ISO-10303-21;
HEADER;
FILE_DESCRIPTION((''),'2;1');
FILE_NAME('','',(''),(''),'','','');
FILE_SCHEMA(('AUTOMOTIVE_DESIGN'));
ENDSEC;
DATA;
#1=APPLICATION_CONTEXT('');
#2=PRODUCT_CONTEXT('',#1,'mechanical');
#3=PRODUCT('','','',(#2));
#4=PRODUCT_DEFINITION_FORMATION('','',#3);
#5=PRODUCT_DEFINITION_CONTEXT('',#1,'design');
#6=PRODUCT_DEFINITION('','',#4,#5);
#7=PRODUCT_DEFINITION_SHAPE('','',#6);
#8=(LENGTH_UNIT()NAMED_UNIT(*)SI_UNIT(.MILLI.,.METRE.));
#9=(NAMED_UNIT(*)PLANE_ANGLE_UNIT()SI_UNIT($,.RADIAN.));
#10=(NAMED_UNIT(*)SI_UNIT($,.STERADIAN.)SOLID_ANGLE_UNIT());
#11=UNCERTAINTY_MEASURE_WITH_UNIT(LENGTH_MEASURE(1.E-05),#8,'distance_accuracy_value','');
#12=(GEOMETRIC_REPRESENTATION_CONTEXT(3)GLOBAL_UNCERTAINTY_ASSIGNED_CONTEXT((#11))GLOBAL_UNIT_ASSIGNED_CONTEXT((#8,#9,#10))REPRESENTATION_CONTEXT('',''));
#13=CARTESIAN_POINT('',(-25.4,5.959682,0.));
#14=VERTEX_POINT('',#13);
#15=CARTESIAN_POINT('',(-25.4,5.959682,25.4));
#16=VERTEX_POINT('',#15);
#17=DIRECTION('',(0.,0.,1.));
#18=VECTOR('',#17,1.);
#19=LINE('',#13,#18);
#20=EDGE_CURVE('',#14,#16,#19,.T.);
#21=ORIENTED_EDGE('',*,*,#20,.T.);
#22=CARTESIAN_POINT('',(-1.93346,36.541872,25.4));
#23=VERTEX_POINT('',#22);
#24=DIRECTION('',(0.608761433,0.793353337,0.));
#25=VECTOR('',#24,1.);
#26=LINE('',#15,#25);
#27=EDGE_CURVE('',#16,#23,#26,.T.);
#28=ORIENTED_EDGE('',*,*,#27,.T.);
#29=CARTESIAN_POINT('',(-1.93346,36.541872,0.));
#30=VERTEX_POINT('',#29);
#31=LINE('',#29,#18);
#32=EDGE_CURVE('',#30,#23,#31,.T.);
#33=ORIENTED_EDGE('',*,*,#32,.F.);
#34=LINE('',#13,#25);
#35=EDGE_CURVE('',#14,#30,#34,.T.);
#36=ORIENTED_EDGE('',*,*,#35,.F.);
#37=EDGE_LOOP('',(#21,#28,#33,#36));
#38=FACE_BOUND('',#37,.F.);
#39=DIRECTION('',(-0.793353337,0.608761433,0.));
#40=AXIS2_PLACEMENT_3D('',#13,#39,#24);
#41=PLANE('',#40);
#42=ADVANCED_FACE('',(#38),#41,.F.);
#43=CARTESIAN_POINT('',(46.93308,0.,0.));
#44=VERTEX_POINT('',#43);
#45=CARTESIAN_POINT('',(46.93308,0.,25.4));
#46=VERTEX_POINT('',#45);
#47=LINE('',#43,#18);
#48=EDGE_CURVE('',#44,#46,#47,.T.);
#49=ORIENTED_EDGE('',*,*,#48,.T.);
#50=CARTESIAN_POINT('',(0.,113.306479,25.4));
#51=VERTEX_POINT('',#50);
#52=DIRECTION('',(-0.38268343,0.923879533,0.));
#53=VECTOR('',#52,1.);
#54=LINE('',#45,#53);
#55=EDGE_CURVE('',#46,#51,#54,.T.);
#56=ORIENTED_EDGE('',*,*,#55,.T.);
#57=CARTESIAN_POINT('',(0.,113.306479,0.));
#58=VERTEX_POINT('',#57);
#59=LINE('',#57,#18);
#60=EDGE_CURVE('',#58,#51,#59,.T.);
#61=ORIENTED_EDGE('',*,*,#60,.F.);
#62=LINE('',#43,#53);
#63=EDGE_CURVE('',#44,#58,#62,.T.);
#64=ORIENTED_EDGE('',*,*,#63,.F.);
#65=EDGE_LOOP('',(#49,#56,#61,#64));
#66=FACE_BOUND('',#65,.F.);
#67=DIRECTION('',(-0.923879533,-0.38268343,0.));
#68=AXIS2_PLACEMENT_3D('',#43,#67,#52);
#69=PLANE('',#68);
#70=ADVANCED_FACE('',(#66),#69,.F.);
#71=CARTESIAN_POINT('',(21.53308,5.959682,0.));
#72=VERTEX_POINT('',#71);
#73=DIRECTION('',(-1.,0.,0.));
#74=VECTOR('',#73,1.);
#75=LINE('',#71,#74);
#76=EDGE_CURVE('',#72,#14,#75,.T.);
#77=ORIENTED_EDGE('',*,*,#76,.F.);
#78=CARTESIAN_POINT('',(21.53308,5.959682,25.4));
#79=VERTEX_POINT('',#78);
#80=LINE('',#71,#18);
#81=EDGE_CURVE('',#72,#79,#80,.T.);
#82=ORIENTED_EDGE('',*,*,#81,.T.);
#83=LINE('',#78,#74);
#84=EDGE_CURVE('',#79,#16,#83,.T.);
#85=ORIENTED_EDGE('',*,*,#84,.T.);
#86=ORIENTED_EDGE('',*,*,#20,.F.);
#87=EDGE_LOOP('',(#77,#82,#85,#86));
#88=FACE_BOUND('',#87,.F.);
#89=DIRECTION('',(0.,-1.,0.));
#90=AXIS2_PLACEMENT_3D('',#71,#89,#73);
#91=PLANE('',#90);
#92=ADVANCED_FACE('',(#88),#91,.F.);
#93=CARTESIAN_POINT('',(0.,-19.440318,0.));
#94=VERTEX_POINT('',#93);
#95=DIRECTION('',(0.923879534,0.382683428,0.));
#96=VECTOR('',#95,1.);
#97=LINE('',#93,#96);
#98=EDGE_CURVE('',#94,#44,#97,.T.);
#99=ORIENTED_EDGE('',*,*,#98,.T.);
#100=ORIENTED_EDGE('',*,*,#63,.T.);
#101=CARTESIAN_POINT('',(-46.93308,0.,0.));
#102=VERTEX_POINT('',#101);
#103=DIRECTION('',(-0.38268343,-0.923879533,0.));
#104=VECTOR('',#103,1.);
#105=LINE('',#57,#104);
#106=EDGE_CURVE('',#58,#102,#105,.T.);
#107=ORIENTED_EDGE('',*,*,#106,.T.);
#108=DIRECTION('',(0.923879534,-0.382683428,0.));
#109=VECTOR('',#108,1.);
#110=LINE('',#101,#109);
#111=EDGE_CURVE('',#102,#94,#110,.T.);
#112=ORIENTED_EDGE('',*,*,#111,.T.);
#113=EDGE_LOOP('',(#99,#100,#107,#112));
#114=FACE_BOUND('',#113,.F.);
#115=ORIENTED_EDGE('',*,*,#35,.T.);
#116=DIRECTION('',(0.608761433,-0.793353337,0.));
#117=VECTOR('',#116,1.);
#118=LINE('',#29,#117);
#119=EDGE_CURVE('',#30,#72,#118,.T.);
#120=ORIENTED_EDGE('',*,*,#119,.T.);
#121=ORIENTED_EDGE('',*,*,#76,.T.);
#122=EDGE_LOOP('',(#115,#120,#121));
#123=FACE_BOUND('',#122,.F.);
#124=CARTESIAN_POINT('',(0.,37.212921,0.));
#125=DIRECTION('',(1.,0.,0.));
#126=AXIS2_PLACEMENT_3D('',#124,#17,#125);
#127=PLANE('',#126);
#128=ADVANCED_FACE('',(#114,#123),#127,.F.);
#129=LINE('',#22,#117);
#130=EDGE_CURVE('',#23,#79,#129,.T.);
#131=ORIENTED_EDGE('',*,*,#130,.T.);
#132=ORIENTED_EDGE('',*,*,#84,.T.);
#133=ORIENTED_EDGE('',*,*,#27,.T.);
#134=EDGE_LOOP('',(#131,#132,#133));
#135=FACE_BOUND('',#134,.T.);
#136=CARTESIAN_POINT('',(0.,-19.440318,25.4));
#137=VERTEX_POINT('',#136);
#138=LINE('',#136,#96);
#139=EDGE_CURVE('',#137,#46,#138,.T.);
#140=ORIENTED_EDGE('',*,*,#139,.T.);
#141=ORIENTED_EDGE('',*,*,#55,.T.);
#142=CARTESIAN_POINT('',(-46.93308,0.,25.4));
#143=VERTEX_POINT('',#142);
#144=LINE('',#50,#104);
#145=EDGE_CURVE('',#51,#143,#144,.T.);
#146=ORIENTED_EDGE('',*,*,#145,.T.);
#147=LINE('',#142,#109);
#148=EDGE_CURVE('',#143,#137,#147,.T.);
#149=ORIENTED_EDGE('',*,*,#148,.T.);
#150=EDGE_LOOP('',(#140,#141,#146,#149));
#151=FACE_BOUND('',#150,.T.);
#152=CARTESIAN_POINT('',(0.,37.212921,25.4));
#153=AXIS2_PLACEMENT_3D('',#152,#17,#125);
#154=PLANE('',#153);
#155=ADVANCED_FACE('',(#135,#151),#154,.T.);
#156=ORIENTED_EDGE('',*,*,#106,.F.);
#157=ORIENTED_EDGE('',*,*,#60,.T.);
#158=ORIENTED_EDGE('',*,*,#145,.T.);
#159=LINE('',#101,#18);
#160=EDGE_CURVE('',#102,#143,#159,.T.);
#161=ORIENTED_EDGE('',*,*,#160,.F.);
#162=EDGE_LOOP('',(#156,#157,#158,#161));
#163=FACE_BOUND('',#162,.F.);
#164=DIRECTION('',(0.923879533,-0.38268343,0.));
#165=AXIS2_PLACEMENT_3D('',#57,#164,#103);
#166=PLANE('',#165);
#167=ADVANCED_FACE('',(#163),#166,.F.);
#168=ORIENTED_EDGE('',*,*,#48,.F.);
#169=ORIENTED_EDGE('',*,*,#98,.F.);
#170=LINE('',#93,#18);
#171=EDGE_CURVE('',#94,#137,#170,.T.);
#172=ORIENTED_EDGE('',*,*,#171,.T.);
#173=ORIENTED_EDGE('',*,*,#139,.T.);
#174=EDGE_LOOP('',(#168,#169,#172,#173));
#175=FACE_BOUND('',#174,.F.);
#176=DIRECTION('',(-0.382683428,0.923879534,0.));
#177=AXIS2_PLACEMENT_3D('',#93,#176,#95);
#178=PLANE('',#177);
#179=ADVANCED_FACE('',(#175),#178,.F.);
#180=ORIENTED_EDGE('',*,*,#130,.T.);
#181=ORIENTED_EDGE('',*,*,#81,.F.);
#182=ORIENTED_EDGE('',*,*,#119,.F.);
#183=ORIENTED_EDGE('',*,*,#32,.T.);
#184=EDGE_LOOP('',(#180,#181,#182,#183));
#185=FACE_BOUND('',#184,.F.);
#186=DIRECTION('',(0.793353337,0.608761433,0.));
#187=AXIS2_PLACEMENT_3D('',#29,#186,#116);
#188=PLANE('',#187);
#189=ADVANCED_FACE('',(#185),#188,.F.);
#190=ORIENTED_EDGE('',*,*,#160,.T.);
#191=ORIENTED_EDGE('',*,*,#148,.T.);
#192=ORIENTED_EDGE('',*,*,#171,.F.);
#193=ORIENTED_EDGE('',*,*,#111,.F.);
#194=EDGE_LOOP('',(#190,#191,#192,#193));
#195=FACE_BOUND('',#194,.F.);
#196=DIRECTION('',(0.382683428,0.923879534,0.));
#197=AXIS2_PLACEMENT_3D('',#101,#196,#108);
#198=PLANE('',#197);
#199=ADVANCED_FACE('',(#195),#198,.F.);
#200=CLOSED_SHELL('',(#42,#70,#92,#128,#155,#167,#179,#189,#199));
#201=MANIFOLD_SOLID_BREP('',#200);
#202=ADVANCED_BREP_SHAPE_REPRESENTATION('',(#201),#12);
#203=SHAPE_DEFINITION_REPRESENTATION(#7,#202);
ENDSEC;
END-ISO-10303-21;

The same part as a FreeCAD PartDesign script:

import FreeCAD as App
import Part
import Sketcher
from FreeCAD import Vector
Q = App.Units.Quantity

doc = App.newDocument("Part")
body = doc.addObject("PartDesign::Body", "Body")

sketch1 = doc.addObject("Sketcher::SketchObject", "Sketch")
body.addObject(sketch1)
sketch1.AttachmentSupport = (doc.XY_Plane, [""])
sketch1.MapMode = "FlatFace"
sketch1.addGeometry([
    Part.LineSegment(Vector(-47, 0, 0), Vector(0, -19, 0)),
    Part.LineSegment(Vector(0, -19, 0), Vector(47, 0, 0)),
    Part.LineSegment(Vector(47, 0, 0), Vector(0, 113, 0)),
    Part.LineSegment(Vector(0, 113, 0), Vector(-47, 0, 0)),
    Part.LineSegment(Vector(-2, 37, 0), Vector(22, 6, 0)),
    Part.LineSegment(Vector(22, 6, 0), Vector(-25, 6, 0)),
    Part.LineSegment(Vector(-25, 6, 0), Vector(-2, 37, 0)),
], False)
sketch1.addConstraint([
    Sketcher.Constraint("Coincident", 0, 2, 1, 1),
    Sketcher.Constraint("Coincident", 1, 2, 2, 1),
    Sketcher.Constraint("Coincident", 2, 2, 3, 1),
    Sketcher.Constraint("Coincident", 3, 2, 0, 1),
    Sketcher.Constraint("Coincident", 4, 2, 5, 1),
    Sketcher.Constraint("Coincident", 5, 2, 6, 1),
    Sketcher.Constraint("Coincident", 6, 2, 4, 1),
    Sketcher.Constraint("Horizontal", 5),
    Sketcher.Constraint("Symmetric", 1, 2, 3, 2, -1, 1),
    Sketcher.Constraint("PointOnObject", 0, 2, -2),
    Sketcher.Constraint("PointOnObject", 1, 2, -1),
    Sketcher.Constraint("PointOnObject", 2, 2, -2),
    Sketcher.Constraint("Perpendicular", 1, 2),
    Sketcher.Constraint("Equal", 4, 6),
    Sketcher.Constraint("Distance", 0, Q("2 in")),
    Sketcher.Constraint("DistanceX", 5, 2, -1, 1, Q("1 in")),
    Sketcher.Constraint("DistanceX", 4, 2, 1, 2, Q("1 in")),
    Sketcher.Constraint("DistanceY", 0, 2, 4, 2, Q("1 in")),
    Sketcher.Constraint("Angle", 0, Q("-22.5 deg")),
    Sketcher.Constraint("Angle", 4, Q("-52.5 deg")),
])
pad1 = doc.addObject("PartDesign::Pad", "Pad")
body.addObject(pad1)
pad1.Profile = sketch1
pad1.Length = Q("1 in")

doc.recompute()
